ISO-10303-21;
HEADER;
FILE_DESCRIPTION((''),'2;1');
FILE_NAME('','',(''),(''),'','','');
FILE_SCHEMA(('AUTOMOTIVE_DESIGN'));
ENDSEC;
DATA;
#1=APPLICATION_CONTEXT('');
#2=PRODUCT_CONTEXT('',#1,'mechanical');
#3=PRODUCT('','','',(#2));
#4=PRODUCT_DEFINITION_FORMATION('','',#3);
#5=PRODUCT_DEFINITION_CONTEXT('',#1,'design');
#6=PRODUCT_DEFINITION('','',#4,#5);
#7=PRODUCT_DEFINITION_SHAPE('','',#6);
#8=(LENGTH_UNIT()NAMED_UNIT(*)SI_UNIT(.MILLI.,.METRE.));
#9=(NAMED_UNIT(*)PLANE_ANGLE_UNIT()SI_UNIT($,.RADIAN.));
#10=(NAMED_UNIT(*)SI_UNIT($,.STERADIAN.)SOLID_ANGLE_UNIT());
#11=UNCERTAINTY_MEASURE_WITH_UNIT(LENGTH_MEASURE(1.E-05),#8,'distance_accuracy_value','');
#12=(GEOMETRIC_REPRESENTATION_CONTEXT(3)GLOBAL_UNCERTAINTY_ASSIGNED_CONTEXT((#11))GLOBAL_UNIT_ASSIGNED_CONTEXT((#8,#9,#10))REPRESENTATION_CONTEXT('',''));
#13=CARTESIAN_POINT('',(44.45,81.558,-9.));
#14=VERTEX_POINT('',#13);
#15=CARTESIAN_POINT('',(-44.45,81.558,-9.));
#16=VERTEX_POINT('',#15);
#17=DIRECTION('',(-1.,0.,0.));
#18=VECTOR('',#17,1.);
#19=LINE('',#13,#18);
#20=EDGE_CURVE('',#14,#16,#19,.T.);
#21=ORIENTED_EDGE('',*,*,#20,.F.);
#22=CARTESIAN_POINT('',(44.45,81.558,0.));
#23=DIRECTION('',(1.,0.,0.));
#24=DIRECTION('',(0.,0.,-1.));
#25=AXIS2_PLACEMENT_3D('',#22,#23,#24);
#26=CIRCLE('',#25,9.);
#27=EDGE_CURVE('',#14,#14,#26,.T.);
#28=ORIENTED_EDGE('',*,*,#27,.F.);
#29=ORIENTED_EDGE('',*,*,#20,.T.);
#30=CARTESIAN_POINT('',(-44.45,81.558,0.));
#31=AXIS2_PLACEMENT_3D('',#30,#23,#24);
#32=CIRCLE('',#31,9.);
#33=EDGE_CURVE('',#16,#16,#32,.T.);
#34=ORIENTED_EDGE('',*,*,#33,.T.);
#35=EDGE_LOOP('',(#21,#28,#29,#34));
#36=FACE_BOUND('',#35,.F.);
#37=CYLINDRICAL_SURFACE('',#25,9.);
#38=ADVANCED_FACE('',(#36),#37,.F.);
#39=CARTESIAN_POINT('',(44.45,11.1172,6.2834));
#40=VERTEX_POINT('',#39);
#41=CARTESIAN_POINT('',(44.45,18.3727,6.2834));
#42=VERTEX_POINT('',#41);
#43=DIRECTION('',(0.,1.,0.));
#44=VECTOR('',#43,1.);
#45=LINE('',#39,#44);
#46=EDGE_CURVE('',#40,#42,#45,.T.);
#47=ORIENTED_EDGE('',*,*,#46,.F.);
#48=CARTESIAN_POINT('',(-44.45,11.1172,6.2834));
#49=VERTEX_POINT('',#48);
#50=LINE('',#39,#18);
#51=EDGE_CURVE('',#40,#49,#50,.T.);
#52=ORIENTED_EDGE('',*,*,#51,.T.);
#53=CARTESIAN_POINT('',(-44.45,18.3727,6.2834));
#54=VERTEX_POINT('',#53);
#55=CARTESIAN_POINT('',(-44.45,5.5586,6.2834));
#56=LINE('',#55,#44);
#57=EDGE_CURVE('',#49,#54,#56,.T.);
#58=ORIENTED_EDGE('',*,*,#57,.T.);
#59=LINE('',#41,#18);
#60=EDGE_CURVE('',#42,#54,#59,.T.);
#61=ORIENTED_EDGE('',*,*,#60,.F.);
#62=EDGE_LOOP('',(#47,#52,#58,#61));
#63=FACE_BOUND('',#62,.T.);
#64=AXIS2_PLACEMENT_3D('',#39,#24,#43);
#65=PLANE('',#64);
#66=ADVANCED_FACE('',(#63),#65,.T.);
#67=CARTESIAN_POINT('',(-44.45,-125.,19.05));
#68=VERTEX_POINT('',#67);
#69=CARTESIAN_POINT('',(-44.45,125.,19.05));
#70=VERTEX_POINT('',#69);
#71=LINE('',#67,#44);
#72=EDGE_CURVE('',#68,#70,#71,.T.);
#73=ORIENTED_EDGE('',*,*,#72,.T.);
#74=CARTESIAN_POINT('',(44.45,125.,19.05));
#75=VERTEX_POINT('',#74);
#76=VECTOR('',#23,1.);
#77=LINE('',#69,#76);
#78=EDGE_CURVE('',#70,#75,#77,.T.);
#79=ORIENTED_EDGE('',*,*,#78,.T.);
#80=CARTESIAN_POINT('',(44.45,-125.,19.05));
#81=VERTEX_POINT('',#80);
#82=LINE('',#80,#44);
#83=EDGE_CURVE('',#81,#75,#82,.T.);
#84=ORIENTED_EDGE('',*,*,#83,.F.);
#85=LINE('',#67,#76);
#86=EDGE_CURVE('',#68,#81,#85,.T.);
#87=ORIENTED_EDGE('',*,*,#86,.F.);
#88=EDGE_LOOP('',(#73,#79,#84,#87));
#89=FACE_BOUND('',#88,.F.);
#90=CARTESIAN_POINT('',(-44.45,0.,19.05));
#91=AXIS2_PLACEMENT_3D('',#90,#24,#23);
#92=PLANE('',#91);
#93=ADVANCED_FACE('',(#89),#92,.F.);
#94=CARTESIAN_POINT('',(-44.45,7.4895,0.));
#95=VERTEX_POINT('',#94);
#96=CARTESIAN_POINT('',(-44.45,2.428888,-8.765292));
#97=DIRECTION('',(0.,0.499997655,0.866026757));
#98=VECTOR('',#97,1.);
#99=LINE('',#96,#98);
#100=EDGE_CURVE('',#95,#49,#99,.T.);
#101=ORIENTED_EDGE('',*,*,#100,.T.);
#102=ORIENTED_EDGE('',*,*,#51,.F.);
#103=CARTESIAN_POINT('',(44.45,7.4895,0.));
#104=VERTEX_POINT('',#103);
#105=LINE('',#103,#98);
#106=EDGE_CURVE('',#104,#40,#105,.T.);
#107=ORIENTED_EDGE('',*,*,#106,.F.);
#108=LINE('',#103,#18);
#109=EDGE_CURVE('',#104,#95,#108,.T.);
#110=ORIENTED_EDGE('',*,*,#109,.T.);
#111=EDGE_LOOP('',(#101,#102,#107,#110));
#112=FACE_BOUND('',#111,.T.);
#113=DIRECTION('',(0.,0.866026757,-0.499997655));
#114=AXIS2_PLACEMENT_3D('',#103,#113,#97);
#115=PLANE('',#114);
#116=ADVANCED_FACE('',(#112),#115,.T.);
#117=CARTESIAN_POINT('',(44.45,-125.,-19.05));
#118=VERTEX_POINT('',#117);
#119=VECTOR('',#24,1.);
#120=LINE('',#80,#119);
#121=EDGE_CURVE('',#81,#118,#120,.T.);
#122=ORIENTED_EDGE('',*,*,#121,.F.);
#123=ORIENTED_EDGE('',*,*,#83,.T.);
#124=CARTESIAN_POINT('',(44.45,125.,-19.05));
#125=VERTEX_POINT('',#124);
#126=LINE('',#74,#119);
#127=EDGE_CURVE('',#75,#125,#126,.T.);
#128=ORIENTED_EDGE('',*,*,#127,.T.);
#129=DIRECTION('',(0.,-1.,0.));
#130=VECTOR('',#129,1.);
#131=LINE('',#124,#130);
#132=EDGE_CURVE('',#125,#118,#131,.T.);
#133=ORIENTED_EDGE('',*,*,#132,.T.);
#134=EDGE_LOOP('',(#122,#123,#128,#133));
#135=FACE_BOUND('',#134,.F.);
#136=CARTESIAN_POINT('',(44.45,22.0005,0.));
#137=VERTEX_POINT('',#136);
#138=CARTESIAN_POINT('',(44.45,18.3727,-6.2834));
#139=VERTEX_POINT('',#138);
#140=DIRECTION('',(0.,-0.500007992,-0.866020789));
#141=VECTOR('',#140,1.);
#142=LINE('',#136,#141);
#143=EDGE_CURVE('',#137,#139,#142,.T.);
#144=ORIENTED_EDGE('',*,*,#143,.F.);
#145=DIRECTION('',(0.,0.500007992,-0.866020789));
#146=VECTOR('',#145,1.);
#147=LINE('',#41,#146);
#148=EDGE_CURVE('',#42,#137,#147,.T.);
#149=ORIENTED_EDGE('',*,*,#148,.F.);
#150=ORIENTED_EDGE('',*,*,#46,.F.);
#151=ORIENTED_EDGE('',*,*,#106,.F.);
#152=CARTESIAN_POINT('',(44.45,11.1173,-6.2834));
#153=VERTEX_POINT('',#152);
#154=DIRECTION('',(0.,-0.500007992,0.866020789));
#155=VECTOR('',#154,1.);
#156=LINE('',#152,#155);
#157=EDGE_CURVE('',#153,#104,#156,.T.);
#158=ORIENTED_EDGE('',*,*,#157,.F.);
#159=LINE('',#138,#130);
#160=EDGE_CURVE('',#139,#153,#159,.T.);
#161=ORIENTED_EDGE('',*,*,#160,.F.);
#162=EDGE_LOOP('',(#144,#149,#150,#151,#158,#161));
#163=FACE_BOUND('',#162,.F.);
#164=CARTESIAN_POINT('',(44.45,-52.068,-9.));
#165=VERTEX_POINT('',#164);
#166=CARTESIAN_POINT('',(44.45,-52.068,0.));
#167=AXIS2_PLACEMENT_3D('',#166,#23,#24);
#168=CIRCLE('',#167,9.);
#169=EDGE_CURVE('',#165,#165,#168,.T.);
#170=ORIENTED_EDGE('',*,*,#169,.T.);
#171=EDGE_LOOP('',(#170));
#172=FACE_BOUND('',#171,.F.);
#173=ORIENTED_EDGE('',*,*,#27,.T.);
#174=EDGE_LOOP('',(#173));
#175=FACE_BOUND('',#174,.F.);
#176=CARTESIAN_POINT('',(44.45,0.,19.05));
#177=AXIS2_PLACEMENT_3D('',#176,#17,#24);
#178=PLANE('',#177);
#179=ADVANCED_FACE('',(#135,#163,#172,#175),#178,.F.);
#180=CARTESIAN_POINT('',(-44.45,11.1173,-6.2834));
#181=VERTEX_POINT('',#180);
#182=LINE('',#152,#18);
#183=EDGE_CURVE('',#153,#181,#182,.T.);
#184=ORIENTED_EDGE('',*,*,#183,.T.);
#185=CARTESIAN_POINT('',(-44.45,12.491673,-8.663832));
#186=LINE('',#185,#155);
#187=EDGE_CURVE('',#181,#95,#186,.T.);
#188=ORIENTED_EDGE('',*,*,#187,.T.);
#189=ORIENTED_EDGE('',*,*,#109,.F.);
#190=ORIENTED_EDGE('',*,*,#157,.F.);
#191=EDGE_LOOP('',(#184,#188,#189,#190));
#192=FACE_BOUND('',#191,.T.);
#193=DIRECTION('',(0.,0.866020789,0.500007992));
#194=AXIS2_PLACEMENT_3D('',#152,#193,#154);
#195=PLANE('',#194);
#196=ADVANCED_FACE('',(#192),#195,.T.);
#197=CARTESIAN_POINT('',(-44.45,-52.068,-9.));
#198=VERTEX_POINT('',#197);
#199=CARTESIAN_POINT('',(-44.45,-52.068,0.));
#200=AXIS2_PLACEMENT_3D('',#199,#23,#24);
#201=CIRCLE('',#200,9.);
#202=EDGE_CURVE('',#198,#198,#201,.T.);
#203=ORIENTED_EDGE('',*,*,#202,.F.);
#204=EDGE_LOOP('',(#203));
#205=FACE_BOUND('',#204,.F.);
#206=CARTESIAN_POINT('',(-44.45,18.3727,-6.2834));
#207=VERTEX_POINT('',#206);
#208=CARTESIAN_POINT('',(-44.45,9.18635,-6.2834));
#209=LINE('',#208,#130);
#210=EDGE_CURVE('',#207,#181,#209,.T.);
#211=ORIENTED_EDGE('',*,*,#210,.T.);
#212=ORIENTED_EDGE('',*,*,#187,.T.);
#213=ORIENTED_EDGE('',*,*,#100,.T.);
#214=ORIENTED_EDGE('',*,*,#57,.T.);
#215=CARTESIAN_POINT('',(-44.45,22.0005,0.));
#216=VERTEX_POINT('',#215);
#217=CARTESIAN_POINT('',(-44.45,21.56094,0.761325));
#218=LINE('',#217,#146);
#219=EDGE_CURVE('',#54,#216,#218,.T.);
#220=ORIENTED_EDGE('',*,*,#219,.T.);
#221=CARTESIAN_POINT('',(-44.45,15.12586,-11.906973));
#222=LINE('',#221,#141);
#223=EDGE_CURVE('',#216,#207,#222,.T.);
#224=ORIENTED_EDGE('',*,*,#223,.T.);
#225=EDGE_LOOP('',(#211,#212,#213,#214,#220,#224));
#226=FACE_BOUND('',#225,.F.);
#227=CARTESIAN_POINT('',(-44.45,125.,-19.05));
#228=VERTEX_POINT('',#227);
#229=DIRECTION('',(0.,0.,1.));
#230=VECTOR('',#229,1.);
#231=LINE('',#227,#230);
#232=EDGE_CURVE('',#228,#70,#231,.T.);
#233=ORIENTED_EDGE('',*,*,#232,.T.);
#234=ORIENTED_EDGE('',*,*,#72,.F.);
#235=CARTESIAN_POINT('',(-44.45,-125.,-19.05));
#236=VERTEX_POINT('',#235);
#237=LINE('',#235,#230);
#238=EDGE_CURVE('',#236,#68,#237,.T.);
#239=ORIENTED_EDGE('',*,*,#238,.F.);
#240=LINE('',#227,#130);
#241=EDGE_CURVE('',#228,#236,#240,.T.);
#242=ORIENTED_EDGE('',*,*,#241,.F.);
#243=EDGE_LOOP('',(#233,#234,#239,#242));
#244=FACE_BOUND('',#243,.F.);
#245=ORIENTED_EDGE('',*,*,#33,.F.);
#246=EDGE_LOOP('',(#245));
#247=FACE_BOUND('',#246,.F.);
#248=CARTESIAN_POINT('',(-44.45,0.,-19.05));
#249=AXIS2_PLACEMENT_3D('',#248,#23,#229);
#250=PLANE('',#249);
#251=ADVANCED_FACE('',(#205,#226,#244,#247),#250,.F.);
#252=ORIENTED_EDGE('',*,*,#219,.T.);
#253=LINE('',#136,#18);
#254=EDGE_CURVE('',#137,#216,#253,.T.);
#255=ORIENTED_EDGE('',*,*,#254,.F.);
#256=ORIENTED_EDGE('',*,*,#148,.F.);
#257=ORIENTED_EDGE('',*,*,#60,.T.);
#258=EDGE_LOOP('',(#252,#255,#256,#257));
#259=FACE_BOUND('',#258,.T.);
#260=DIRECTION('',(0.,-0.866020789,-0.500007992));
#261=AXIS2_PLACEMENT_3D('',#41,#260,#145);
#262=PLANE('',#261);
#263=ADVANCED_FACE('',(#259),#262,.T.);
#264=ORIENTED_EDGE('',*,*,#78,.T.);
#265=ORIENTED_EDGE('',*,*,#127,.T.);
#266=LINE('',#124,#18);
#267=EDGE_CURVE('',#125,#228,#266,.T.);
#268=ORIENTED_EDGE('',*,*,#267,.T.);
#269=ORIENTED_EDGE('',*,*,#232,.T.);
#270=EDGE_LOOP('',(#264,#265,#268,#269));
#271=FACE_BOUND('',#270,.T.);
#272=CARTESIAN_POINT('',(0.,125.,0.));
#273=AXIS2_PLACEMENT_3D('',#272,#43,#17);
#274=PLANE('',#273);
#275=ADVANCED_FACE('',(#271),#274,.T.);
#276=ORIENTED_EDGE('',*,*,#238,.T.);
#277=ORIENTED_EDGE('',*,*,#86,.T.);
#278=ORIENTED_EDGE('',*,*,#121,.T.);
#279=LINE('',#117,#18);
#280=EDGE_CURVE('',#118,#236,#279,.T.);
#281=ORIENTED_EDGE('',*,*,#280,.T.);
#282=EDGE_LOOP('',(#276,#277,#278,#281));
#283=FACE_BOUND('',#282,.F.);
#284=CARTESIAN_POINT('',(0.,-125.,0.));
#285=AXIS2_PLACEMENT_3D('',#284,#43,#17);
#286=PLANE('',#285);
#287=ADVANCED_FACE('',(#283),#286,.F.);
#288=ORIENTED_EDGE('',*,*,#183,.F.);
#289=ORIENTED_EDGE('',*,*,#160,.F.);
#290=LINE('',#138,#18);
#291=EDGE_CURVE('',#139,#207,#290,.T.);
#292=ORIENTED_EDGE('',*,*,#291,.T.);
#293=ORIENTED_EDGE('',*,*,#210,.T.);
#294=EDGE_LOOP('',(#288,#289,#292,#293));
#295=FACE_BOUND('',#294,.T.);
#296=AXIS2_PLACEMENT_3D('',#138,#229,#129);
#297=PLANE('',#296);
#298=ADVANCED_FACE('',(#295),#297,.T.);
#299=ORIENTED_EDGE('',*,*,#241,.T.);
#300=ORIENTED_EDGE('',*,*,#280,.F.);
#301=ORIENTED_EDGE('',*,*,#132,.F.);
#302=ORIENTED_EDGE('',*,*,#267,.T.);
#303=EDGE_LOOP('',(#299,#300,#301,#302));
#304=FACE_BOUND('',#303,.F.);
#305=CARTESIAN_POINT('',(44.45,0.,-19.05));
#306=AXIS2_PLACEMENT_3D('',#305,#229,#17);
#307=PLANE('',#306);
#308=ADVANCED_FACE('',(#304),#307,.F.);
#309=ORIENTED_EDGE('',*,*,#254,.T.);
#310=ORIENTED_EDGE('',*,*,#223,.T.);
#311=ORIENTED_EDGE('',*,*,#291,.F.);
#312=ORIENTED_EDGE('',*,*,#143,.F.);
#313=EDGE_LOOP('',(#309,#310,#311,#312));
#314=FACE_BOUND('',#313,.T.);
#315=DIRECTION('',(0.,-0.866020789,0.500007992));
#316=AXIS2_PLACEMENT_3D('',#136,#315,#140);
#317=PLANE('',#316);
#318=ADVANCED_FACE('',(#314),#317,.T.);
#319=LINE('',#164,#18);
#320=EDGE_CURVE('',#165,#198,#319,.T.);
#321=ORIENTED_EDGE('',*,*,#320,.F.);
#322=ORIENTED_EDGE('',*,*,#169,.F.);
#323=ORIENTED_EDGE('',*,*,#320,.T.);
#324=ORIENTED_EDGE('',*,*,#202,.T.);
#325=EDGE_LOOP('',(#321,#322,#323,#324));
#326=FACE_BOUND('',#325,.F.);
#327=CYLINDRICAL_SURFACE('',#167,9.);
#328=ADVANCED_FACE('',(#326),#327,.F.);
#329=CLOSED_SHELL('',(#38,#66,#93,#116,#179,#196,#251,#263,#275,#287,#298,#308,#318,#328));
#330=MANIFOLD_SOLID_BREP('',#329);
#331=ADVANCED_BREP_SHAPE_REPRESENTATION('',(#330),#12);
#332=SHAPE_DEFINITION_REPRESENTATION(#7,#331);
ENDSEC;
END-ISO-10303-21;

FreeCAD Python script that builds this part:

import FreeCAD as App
import Part
import Sketcher

V = App.Vector
Q = App.Units.Quantity


def add_polygon(sketch, points):
    """Adds a closed chain of lines whose ends are joined by coincident constraints."""
    first, n = sketch.GeometryCount, len(points)
    for a, b in zip(points, points[1:] + points[:1]):
        sketch.addGeometry(Part.LineSegment(App.Vector(*a, 0), App.Vector(*b, 0)), False)
    for i in range(n):
        sketch.addConstraint(Sketcher.Constraint("Coincident", first + i, 2, first + (i + 1) % n, 1))

doc = App.newDocument("Part")
params = doc.addObject("Spreadsheet::Sheet", "Params")
for row, (alias, value) in enumerate([
    ("sketch1_width", "3.5 in"),
    ("sketch1_height", "1.5 in"),
    ("pad1_length", "250 mm"),
    ("pocket1_length", "4.0625 in"),
], start=1):
    params.set(f"A{row}", alias)
    params.set(f"B{row}", "=" + value)
    params.setAlias(f"B{row}", alias)

body = doc.addObject("PartDesign::Body", "Body")

# Sketch on XZ plane
sketch1 = body.newObject("Sketcher::SketchObject", "Sketch")
sketch1.AttachmentSupport = (doc.getObject("XZ_Plane"), [""])
sketch1.MapMode = "FlatFace"
add_polygon(sketch1, [(-44, -19), (-44, 19), (44, 19), (44, -19)])  # lines 0-3
sketch1.addConstraint([
    Sketcher.Constraint("Vertical", 0),
    Sketcher.Constraint("Horizontal", 1),
    Sketcher.Constraint("Vertical", 2),
    Sketcher.Constraint("Horizontal", 3),
    Sketcher.Constraint("Symmetric", 0, 2, 2, 2, -1, 1),
    Sketcher.Constraint("DistanceX", 1, 1, 1, 2, Q("3.5 in")),
    Sketcher.Constraint("DistanceY", 0, 1, 0, 2, Q("1.5 in")),
])
sketch1.setExpression("Constraints[9]", "Params.sketch1_width")
sketch1.setExpression("Constraints[10]", "Params.sketch1_height")
pad1 = body.newObject("PartDesign::Pad", "Pad")
pad1.Profile = sketch1
pad1.setExpression("Length", "Params.pad1_length")
pad1.Midplane = True

# Sketch on YZ plane
sketch2 = body.newObject("Sketcher::SketchObject", "Sketch001")
sketch2.AttachmentSupport = (doc.getObject("YZ_Plane"), [""])
sketch2.MapMode = "FlatFace"
sketch2.AttachmentOffset = App.Placement(V(0, 0, 1.75 * 25.4), App.Rotation())
sketch2.addGeometry(Part.Circle(V(82, 0, 0), V(0, 0, 1), 9), False)  # 0
sketch2.addGeometry(Part.Circle(V(-52, 0, 0), V(0, 0, 1), 9), False)  # 1
add_polygon(sketch2, [(11, -6), (18, -6), (22, 0), (18, 6), (11, 6), (7, 0)])  # lines 2-7
sketch2.addConstraint([
    Sketcher.Constraint("Horizontal", 2),
    Sketcher.Constraint("Horizontal", 5),
    Sketcher.Constraint("Equal", 0, 1),
    Sketcher.Constraint("Symmetric", 2, 2, 4, 2, -1),
    Sketcher.Constraint("PointOnObject", 0, 3, -1),
    Sketcher.Constraint("PointOnObject", 1, 3, -1),
    Sketcher.Constraint("PointOnObject", 3, 2, -1),
    Sketcher.Constraint("PointOnObject", 6, 2, -1),
    Sketcher.Constraint("Parallel", 3, 6),
    Sketcher.Constraint("Parallel", 4, 7),
    Sketcher.Constraint("Diameter", 0, 18.0),
    Sketcher.Constraint("Angle", 3, Q("59.9995 deg")),
    Sketcher.Constraint("DistanceX", 6, 2, 3, 2, Q("0.5713 in")),
    Sketcher.Constraint("DistanceX", 1, 3, 0, 3, 133.626),
    Sketcher.Constraint("DistanceX", 2, 1, 2, 2, 7.2554),
    Sketcher.Constraint("DistanceX", -1, 1, 7, 2, Q("0.4377 in")),
    Sketcher.Constraint("DistanceX", 2, 2, 0, 3, Q("2.4876 in")),
])
pocket1 = body.newObject("PartDesign::Pocket", "Pocket")
pocket1.Profile = sketch2
pocket1.setExpression("Length", "Params.pocket1_length")

doc.recompute()
